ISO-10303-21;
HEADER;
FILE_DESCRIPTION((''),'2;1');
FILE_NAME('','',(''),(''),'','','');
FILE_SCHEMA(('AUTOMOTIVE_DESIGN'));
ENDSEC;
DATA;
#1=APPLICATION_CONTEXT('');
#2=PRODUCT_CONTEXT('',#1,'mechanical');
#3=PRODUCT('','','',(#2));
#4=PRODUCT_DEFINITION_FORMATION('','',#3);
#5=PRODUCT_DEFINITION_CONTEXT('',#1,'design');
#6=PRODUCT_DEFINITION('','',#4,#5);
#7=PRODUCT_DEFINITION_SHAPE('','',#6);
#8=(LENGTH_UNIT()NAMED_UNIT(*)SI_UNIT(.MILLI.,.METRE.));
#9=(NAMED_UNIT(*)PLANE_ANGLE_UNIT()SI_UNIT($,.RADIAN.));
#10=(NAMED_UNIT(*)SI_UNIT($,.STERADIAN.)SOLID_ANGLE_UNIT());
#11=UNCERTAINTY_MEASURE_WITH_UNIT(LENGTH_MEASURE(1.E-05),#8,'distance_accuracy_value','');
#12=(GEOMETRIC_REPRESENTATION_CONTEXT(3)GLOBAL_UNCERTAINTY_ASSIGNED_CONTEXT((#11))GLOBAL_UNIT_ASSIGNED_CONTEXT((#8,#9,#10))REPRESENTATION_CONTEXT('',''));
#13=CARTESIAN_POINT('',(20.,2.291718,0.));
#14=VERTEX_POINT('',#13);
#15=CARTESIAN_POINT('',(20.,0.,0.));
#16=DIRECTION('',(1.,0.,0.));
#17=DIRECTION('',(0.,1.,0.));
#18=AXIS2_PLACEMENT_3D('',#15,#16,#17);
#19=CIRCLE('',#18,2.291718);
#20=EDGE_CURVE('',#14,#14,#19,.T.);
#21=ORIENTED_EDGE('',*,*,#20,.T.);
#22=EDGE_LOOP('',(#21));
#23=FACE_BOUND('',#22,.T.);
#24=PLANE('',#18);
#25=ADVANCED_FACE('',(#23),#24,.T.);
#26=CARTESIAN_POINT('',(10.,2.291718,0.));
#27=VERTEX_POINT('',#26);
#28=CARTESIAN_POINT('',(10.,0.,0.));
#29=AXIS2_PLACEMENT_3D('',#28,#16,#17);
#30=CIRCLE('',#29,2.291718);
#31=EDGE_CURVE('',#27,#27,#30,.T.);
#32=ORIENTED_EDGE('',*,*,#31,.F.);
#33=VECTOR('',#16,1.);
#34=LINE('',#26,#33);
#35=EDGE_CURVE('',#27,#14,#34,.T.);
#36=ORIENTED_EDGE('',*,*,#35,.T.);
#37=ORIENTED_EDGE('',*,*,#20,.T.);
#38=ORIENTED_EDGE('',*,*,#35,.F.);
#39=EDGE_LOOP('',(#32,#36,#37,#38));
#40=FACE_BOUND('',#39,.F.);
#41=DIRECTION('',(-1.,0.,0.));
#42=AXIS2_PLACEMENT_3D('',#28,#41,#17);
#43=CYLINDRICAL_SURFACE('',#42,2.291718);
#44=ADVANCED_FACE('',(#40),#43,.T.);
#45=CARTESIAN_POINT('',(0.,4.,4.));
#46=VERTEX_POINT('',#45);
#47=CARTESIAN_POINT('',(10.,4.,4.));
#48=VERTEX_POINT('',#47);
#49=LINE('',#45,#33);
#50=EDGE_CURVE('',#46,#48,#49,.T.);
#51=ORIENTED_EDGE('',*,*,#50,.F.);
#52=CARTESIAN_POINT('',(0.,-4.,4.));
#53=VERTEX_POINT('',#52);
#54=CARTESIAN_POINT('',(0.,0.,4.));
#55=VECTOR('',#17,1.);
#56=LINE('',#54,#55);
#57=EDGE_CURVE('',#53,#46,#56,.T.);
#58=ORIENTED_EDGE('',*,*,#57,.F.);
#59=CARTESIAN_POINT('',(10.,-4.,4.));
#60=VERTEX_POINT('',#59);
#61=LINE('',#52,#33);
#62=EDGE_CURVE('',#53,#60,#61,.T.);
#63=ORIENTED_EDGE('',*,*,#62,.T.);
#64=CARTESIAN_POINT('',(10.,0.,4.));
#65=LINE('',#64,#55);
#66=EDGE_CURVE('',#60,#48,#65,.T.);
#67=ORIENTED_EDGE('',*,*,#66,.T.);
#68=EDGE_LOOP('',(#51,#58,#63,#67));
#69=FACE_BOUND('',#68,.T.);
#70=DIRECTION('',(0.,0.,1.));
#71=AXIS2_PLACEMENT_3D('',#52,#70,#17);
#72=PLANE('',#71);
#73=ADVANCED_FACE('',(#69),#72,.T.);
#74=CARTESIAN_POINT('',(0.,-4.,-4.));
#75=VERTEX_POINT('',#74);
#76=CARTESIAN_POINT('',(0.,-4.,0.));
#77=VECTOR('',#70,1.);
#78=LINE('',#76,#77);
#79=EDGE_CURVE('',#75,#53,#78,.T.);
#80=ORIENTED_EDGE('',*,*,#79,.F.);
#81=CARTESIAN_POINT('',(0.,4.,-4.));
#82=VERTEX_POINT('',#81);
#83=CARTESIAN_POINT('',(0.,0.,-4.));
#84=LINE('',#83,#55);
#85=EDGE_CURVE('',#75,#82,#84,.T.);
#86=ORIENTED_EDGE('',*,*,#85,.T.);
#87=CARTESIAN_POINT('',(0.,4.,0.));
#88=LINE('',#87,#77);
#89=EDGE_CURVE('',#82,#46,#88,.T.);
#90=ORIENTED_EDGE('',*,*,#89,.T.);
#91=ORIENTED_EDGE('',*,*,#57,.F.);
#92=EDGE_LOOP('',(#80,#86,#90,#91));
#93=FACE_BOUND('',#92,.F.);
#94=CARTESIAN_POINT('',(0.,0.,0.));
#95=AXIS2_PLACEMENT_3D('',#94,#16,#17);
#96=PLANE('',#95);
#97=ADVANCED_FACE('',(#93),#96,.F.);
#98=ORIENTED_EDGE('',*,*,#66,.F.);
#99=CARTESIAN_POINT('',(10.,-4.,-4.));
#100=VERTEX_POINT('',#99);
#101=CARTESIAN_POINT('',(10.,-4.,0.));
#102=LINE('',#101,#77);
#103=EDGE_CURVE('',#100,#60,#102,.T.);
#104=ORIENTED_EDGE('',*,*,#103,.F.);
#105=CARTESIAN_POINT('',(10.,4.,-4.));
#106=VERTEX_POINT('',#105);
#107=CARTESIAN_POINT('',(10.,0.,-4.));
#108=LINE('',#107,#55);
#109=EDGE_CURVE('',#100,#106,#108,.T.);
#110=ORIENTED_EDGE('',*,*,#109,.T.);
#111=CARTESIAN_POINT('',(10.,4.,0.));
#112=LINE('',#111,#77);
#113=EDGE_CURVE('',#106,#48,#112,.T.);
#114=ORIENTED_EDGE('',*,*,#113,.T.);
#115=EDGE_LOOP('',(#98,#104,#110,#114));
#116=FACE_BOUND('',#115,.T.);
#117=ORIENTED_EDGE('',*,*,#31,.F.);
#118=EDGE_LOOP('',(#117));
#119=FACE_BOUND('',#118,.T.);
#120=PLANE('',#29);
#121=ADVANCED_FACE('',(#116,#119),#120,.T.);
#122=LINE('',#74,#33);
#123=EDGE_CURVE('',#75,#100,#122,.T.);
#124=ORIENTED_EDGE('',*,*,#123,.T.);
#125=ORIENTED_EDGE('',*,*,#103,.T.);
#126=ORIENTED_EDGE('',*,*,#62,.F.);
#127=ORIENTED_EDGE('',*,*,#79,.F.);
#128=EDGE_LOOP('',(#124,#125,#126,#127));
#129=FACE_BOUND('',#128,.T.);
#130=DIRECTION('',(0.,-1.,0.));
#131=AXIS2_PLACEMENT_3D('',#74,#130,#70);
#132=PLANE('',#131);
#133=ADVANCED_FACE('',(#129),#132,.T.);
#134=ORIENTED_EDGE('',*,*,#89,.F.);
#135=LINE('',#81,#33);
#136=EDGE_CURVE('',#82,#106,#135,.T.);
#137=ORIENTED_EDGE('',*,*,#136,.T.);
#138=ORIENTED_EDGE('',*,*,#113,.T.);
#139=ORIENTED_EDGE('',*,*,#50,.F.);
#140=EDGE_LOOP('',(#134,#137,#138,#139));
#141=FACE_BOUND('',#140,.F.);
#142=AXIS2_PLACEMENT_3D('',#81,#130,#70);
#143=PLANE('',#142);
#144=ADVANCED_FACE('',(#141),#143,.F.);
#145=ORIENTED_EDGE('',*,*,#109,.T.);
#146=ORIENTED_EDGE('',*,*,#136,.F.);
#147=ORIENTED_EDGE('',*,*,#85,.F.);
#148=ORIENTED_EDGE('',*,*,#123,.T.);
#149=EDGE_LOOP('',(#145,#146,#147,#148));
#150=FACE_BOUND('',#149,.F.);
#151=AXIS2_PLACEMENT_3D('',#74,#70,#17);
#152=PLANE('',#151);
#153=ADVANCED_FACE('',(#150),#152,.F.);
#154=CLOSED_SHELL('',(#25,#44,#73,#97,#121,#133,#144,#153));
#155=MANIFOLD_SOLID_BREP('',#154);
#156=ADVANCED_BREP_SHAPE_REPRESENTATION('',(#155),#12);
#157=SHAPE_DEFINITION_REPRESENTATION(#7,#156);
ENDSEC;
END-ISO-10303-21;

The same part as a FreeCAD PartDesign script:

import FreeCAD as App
import Part
import Sketcher
from FreeCAD import Vector
Q = App.Units.Quantity

doc = App.newDocument("Part")
body = doc.addObject("PartDesign::Body", "Body")

sketch1 = body.newObject("Sketcher::SketchObject", "Sketch")
sketch1.AttachmentSupport = (doc.getObject("YZ_Plane"), [""])
sketch1.MapMode = "FlatFace"
sketch1.addGeometry(Part.LineSegment(Vector(-4, 4, 0), Vector(-4, -4, 0)), False)
sketch1.addGeometry(Part.LineSegment(Vector(-4, -4, 0), Vector(4, -4, 0)), False)
sketch1.addGeometry(Part.LineSegment(Vector(4, -4, 0), Vector(4, 4, 0)), False)
sketch1.addGeometry(Part.LineSegment(Vector(4, 4, 0), Vector(-4, 4, 0)), False)
sketch1.addConstraint(Sketcher.Constraint("Coincident", 0, 2, 1, 1))
sketch1.addConstraint(Sketcher.Constraint("Coincident", 1, 2, 2, 1))
sketch1.addConstraint(Sketcher.Constraint("Coincident", 2, 2, 3, 1))
sketch1.addConstraint(Sketcher.Constraint("Coincident", 3, 2, 0, 1))
sketch1.addConstraint(Sketcher.Constraint("Vertical", 0))
sketch1.addConstraint(Sketcher.Constraint("Horizontal", 1))
sketch1.addConstraint(Sketcher.Constraint("Vertical", 2))
sketch1.addConstraint(Sketcher.Constraint("Horizontal", 3))
sketch1.addConstraint(Sketcher.Constraint("Symmetric", 0, 2, 2, 2, -1, 1))
sketch1.addConstraint(Sketcher.Constraint("Equal", 3, 0))
sketch1.addConstraint(Sketcher.Constraint("DistanceX", 1, 1, 1, 2, Q("8 mm")))
pad1 = body.newObject("PartDesign::Pad", "Pad")
pad1.Profile = sketch1
pad1.Length = 10

sketch2 = body.newObject("Sketcher::SketchObject", "Sketch001")
sketch2.AttachmentSupport = (doc.getObject("YZ_Plane"), [""])
sketch2.MapMode = "FlatFace"
sketch2.AttachmentOffset = App.Placement(Vector(0, 0, 10), App.Rotation())
sketch2.addGeometry(Part.Circle(Vector(0, 0, 0), Vector(0, 0, 1), 2.3), False)
sketch2.addConstraint(Sketcher.Constraint("Coincident", 0, 3, -1, 1))
sketch2.addConstraint(Sketcher.Constraint("Diameter", 0, Q("4.583436 mm")))
pad2 = body.newObject("PartDesign::Pad", "Pad001")
pad2.Profile = sketch2
pad2.Length = 10

doc.recompute()
